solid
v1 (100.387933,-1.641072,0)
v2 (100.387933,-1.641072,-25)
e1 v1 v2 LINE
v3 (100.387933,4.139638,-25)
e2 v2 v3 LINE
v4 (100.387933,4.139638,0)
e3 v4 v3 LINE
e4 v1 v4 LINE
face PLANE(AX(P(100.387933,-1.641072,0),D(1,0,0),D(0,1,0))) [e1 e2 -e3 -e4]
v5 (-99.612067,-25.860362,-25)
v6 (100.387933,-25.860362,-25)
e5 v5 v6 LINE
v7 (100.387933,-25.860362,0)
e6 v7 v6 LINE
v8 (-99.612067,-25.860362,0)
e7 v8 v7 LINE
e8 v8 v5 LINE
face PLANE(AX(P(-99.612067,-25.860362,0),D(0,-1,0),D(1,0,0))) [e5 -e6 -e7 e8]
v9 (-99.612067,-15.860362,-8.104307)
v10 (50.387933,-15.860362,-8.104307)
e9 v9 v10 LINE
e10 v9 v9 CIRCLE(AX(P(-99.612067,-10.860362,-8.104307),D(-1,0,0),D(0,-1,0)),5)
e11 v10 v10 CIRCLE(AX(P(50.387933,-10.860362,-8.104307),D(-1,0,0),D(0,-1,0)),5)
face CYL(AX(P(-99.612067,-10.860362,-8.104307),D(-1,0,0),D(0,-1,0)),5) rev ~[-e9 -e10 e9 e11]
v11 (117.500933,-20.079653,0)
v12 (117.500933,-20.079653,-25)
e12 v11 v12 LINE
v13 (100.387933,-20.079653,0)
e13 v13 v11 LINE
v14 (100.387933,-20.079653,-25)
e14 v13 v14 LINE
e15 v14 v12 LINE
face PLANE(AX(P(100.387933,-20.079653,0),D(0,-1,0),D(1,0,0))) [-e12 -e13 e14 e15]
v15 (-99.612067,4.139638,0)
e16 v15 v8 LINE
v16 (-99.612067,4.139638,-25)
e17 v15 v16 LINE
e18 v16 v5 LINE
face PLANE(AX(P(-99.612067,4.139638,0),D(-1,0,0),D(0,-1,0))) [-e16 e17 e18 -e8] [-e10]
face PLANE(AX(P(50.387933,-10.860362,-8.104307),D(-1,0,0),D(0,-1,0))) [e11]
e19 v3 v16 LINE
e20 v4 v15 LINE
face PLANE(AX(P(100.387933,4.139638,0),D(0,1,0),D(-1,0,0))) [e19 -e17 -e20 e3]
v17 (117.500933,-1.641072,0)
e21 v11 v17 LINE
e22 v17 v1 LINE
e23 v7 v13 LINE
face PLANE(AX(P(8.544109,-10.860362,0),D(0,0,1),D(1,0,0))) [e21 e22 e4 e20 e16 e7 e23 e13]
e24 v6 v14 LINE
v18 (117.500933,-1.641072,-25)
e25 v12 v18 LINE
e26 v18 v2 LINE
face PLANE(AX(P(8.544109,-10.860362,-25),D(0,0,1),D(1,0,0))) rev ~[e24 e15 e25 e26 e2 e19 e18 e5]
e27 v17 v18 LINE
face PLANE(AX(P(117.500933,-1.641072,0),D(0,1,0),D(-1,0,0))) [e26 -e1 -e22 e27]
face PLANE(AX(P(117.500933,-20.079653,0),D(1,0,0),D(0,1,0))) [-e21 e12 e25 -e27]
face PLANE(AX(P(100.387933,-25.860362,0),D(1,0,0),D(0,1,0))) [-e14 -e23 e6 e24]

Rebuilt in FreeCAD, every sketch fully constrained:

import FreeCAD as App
import Part
import Sketcher


def add_polygon(sketch, points):
    """Adds a closed chain of lines whose ends are joined by coincident constraints."""
    first, n = sketch.GeometryCount, len(points)
    for a, b in zip(points, points[1:] + points[:1]):
        sketch.addGeometry(Part.LineSegment(App.Vector(*a, 0), App.Vector(*b, 0)), False)
    for i in range(n):
        sketch.addConstraint(Sketcher.Constraint("Coincident", first + i, 2, first + (i + 1) % n, 1))

doc = App.newDocument("Part")
params = doc.addObject("Spreadsheet::Sheet", "Params")
for row, (alias, value) in enumerate([
    ("sketch1_width", "200 mm"),
    ("sketch1_height", "30 mm"),
    ("pad1_length", "25 mm"),
    ("sketch2_diameter", "10 mm"),
    ("pocket1_length", "150 mm"),
], start=1):
    params.set(f"A{row}", alias)
    params.set(f"B{row}", "=" + value)
    params.setAlias(f"B{row}", alias)

body = doc.addObject("PartDesign::Body", "Body")

# Sketch on XY plane
sketch1 = body.newObject("Sketcher::SketchObject", "Sketch")
sketch1.AttachmentSupport = (doc.getObject("XY_Plane"), [""])
sketch1.MapMode = "FlatFace"
add_polygon(sketch1, [(-100, 4), (-100, -26), (100, -26), (100, -20), (118, -20), (118, -2), (100, -2), (100, 4)])  # lines 0-7
sketch1.addConstraint([
    Sketcher.Constraint("Vertical", 0),
    Sketcher.Constraint("Horizontal", 1),
    Sketcher.Constraint("Vertical", 2),
    Sketcher.Constraint("Horizontal", 3),
    Sketcher.Constraint("Vertical", 4),
    Sketcher.Constraint("Horizontal", 5),
    Sketcher.Constraint("Vertical", 6),
    Sketcher.Constraint("Horizontal", 7),
    Sketcher.Constraint("Vertical", 2, 2, 5, 2),
    Sketcher.Constraint("Equal", 2, 6),
    Sketcher.Constraint("DistanceX", 1, 1, 1, 2, 200.0),
    Sketcher.Constraint("DistanceY", 0, 2, 0, 1, 30.0),
    Sketcher.Constraint("DistanceX", 3, 1, 3, 2, 17.113),
    Sketcher.Constraint("DistanceY", 2, 1, 2, 2, 5.780709),
    Sketcher.Constraint("DistanceY", 0, 2, -1, 1, 25.860362),
    Sketcher.Constraint("DistanceX", 0, 2, -1, 1, 99.612067),
])
sketch1.setExpression("Constraints[18]", "Params.sketch1_width")
sketch1.setExpression("Constraints[19]", "Params.sketch1_height")
pad1 = body.newObject("PartDesign::Pad", "Pad")
pad1.Profile = sketch1
pad1.setExpression("Length", "Params.pad1_length")
pad1.Reversed = True

# Sketch on YZ plane
sketch2 = body.newObject("Sketcher::SketchObject", "Sketch001")
sketch2.AttachmentSupport = (doc.getObject("YZ_Plane"), [""])
sketch2.MapMode = "FlatFace"
sketch2.AttachmentOffset = App.Placement(App.Vector(0, 0, -99.612067), App.Rotation())
sketch2.addGeometry(Part.Circle(App.Vector(-11, -8, 0), App.Vector(0, 0, 1), 5), False)
sketch2.addConstraint([
    Sketcher.Constraint("Diameter", 0, 10.0),
    Sketcher.Constraint("DistanceX", 0, 3, -1, 1, 10.860362),
    Sketcher.Constraint("DistanceY", 0, 3, -1, 1, 8.104307),
])
sketch2.setExpression("Constraints[0]", "Params.sketch2_diameter")
pocket1 = body.newObject("PartDesign::Pocket", "Pocket")
pocket1.Profile = sketch2
pocket1.setExpression("Length", "Params.pocket1_length")
pocket1.Reversed = True

doc.recompute()
